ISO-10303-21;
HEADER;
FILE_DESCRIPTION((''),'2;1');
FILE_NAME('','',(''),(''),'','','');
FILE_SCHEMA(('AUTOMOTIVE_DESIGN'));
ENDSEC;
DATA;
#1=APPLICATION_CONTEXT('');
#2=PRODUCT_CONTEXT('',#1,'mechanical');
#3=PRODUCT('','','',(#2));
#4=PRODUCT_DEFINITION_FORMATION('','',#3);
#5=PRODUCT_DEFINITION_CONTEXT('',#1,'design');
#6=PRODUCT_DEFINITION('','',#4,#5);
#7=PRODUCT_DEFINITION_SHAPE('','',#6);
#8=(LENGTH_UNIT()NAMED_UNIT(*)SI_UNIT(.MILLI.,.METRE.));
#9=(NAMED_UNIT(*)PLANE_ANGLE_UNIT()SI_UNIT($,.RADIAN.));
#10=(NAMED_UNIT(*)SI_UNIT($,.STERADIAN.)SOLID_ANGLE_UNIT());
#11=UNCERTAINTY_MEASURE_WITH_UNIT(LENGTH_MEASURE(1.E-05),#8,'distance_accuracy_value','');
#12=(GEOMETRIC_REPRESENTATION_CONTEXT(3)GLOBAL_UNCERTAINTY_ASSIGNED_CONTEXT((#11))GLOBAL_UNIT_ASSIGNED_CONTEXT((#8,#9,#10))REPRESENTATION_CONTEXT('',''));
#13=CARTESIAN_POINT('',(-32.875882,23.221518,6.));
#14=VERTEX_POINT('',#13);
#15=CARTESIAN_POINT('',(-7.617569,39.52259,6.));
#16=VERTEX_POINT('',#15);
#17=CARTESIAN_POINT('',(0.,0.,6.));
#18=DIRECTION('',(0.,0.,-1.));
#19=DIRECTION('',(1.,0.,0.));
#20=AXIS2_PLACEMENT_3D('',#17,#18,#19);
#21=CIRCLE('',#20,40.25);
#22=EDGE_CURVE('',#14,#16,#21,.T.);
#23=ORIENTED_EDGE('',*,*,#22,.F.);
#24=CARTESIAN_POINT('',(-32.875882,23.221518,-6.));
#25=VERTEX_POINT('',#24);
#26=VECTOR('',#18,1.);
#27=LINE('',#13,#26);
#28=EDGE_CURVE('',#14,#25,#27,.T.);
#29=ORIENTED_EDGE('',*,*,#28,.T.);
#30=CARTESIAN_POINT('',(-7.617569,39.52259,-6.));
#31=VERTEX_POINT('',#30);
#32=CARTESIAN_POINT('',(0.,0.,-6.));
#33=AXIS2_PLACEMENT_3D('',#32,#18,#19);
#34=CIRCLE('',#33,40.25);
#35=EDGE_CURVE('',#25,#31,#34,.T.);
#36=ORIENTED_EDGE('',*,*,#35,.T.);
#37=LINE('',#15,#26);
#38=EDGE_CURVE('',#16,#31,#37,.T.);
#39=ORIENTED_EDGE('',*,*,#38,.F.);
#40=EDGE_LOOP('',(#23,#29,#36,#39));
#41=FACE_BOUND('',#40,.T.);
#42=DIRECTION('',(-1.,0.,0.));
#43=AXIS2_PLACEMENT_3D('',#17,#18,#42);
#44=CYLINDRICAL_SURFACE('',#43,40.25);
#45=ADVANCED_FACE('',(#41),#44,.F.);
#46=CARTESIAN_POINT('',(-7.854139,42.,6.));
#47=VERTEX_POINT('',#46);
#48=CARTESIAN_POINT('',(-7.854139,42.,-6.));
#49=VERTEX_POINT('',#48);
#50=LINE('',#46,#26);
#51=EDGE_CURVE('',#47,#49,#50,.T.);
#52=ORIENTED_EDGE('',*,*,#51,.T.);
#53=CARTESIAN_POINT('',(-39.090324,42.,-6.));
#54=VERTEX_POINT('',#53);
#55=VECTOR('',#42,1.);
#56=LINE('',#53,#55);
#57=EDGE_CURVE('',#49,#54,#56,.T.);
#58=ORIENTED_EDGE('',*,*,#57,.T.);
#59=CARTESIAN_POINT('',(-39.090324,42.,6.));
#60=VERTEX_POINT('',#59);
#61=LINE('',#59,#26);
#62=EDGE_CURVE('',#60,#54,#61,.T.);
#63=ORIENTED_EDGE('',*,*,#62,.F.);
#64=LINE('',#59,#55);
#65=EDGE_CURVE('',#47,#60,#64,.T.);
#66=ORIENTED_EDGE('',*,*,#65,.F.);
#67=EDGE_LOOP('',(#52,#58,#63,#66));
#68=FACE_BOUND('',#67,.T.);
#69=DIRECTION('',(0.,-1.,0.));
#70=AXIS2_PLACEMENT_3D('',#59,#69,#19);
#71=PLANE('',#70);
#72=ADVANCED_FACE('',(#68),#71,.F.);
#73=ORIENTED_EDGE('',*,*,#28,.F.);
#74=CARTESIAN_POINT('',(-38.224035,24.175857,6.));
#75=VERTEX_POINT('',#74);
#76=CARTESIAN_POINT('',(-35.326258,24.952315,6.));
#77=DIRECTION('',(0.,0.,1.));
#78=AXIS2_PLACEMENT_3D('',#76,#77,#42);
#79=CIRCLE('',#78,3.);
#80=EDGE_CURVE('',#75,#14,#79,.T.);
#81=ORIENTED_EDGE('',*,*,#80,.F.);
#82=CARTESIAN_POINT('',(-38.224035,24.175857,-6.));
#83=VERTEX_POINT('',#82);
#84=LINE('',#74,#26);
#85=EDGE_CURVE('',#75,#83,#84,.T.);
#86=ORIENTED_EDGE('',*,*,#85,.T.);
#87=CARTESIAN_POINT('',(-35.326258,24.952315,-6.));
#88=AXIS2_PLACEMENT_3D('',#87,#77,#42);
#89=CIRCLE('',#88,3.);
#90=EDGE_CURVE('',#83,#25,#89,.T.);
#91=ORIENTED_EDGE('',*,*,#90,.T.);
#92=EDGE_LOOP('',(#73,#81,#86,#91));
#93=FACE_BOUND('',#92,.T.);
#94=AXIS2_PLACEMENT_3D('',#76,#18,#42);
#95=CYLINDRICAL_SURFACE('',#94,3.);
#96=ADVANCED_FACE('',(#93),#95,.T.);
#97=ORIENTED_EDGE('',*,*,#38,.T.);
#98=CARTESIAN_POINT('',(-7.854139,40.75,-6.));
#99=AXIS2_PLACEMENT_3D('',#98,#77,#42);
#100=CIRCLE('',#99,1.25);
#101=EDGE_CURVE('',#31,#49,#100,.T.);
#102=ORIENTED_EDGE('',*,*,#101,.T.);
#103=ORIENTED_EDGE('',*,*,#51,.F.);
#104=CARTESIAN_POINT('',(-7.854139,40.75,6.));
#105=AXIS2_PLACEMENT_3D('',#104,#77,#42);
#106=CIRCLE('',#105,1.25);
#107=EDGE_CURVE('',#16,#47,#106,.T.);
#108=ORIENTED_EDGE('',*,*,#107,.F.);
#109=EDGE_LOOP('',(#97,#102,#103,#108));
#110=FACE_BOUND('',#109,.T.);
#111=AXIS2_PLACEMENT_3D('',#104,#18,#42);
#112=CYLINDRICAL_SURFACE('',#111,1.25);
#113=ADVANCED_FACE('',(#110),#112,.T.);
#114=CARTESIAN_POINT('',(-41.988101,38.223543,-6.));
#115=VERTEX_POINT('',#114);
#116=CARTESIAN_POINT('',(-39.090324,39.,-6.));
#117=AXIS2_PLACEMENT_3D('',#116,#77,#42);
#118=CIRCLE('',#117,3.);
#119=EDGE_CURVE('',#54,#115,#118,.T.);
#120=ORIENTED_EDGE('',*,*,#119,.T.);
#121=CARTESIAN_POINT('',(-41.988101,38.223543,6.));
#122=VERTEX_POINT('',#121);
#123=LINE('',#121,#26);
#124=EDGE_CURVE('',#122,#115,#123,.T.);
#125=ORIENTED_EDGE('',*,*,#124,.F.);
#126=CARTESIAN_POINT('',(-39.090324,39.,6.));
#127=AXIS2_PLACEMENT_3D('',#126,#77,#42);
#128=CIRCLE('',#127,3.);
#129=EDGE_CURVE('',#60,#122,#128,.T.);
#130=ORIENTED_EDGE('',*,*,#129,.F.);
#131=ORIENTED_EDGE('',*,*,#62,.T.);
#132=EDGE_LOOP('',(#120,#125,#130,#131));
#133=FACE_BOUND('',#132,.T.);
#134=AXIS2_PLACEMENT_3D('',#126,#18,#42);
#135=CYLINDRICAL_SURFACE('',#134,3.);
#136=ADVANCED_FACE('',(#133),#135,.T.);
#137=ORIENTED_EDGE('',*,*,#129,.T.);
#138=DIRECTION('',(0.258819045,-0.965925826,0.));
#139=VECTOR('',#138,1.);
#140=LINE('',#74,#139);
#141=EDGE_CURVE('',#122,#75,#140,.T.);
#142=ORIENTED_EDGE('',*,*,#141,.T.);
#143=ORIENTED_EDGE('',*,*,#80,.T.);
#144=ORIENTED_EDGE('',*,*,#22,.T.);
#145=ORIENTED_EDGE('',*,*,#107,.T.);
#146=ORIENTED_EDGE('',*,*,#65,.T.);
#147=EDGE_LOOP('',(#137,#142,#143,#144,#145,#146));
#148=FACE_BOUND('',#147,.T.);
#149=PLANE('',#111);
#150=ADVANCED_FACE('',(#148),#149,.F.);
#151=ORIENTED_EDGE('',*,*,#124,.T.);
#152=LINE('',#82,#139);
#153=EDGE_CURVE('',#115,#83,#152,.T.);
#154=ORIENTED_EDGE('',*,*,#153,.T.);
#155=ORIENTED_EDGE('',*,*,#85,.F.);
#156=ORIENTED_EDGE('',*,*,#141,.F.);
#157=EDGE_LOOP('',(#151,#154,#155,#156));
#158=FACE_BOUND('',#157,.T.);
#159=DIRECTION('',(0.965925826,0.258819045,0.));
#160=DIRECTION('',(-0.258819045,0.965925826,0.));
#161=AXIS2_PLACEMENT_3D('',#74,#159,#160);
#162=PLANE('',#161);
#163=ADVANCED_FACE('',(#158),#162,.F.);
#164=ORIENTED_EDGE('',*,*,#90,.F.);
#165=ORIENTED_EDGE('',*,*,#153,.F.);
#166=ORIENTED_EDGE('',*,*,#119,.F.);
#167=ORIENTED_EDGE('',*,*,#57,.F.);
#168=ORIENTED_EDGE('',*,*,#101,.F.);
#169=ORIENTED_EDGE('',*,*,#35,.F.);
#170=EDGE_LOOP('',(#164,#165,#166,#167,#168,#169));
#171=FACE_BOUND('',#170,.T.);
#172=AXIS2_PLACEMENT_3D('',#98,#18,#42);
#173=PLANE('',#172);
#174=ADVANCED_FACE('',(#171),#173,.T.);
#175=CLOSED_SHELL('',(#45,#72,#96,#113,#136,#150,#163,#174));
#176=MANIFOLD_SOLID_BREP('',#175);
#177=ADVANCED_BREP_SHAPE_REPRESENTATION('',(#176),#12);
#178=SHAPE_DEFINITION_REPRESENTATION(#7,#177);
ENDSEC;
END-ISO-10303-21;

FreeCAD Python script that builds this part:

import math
import FreeCAD as App
import Part
import Sketcher
Q = App.Units.Quantity

doc = App.newDocument("Part")
body = doc.addObject("PartDesign::Body", "Body")

sketch1 = body.newObject("Sketcher::SketchObject", "Sketch")
sketch1.AttachmentSupport = (doc.getObject("XY_Plane"), [""])
sketch1.MapMode = "FlatFace"
sketch1.addGeometry(Part.LineSegment(App.Vector(-42, 38.2, 0), App.Vector(-38.2, 24.2, 0)), False)
sketch1.addGeometry(Part.ArcOfCircle(Part.Circle(App.Vector(-35.3, 25, 0), App.Vector(0, 0, 1), 3), math.radians(-165), math.radians(-35)), False)
sketch1.addGeometry(Part.ArcOfCircle(Part.Circle(App.Vector(0, 0, 0), App.Vector(0, 0, 1), 40.3), math.radians(101), math.radians(145)), False)
sketch1.addGeometry(Part.ArcOfCircle(Part.Circle(App.Vector(-7.9, 40.8, 0), App.Vector(0, 0, 1), 1.2), math.radians(-79), math.radians(90)), False)
sketch1.addGeometry(Part.LineSegment(App.Vector(-7.9, 42, 0), App.Vector(-39.1, 42, 0)), False)
sketch1.addGeometry(Part.ArcOfCircle(Part.Circle(App.Vector(-39.1, 39, 0), App.Vector(0, 0, 1), 3), math.radians(90), math.radians(195)), False)
sketch1.addConstraint(Sketcher.Constraint("Tangent", 0, 2, 1, 1))
sketch1.addConstraint(Sketcher.Constraint("Tangent", 1, 2, 2, 2))
sketch1.addConstraint(Sketcher.Constraint("Tangent", 2, 1, 3, 1))
sketch1.addConstraint(Sketcher.Constraint("Tangent", 3, 2, 4, 1))
sketch1.addConstraint(Sketcher.Constraint("Tangent", 4, 2, 5, 1))
sketch1.addConstraint(Sketcher.Constraint("Tangent", 5, 2, 0, 1))
sketch1.addConstraint(Sketcher.Constraint("Horizontal", 4))
sketch1.addConstraint(Sketcher.Constraint("Coincident", 2, 3, -1, 1))
sketch1.addConstraint(Sketcher.Constraint("Equal", 1, 5))
sketch1.addConstraint(Sketcher.Constraint("Radius", 1, Q("3 mm")))
sketch1.addConstraint(Sketcher.Constraint("Angle", 0, Q("-75 deg")))
sketch1.addConstraint(Sketcher.Constraint("Radius", 2, Q("40.25 mm")))
sketch1.addConstraint(Sketcher.Constraint("Radius", 3, Q("1.25 mm")))
sketch1.addConstraint(Sketcher.Constraint("DistanceY", -1, 1, 5, 3, Q("39 mm")))
sketch1.addConstraint(Sketcher.Constraint("DistanceX", 5, 2, -1, 1, Q("41.988101 mm")))
pad1 = body.newObject("PartDesign::Pad", "Pad")
pad1.Profile = sketch1
pad1.Length = 12
pad1.Midplane = True

doc.recompute()
